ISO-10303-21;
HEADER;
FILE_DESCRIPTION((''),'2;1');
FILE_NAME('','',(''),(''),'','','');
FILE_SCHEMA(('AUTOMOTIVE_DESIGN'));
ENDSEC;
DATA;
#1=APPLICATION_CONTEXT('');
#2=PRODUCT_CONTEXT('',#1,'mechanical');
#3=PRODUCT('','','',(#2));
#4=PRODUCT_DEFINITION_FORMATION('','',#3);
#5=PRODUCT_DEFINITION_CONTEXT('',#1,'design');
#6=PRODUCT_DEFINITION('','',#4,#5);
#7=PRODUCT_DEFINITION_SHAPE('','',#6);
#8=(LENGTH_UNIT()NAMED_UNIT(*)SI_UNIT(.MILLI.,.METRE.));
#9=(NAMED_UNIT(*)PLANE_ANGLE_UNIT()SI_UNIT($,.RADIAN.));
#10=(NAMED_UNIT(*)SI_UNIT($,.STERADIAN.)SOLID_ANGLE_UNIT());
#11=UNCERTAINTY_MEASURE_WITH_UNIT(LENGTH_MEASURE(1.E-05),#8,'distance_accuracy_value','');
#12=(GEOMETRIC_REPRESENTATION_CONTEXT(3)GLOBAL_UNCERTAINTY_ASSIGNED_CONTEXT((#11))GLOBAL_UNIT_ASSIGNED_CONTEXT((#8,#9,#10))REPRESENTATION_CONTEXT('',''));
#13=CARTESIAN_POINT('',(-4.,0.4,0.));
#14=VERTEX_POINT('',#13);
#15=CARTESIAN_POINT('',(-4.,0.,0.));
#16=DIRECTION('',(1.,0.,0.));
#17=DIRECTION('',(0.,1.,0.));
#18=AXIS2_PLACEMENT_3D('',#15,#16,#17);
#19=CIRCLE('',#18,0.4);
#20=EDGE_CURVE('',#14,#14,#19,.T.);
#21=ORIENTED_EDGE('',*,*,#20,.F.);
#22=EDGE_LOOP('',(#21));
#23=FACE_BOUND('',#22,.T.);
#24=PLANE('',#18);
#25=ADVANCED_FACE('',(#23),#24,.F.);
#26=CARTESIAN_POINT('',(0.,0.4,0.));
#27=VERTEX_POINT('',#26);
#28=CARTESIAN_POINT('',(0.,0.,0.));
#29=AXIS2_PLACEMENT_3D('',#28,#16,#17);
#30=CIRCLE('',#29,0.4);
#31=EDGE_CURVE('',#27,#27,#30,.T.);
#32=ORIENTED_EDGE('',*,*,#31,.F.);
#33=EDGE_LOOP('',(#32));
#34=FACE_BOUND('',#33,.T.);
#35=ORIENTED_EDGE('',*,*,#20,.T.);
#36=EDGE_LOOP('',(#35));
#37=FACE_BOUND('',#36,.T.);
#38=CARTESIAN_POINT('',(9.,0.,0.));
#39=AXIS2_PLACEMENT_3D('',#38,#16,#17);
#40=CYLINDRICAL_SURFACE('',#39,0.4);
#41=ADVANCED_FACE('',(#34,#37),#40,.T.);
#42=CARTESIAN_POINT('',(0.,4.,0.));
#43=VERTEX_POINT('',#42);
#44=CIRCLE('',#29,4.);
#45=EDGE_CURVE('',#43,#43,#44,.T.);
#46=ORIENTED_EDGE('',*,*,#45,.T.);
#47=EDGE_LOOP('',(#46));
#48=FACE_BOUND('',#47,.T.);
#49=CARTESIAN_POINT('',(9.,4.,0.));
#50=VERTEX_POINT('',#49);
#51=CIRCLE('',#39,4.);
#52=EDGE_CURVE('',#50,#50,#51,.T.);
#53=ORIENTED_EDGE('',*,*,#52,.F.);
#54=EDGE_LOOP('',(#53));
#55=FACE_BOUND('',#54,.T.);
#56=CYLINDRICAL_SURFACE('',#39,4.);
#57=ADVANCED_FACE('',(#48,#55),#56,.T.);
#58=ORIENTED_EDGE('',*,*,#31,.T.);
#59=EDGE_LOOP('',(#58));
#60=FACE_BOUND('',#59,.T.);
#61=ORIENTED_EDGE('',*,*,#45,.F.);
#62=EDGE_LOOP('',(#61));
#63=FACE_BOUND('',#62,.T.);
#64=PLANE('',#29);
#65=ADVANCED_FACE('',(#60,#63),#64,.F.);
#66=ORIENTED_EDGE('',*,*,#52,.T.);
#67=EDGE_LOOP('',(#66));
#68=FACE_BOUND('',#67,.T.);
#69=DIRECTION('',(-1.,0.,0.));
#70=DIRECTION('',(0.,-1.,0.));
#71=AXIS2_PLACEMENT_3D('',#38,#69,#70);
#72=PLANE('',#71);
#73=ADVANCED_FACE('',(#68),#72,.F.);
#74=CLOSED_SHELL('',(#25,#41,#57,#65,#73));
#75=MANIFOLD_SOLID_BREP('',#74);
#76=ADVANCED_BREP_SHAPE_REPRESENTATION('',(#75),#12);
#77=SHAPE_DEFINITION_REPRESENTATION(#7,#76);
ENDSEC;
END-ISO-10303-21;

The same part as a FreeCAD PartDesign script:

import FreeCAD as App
import Part
import Sketcher

V = App.Vector
Q = App.Units.Quantity

doc = App.newDocument("Part")
body = doc.addObject("PartDesign::Body", "Body")

sketch1 = body.newObject("Sketcher::SketchObject", "Sketch")
sketch1.AttachmentSupport = (doc.getObject("XY_Plane"), [""])
sketch1.MapMode = "FlatFace"
sketch1.addGeometry([
    Part.LineSegment(V(-4, 0.4, 0), V(-4, 0, 0)),
    Part.LineSegment(V(-4, 0, 0), V(9, 0, 0)),
    Part.LineSegment(V(9, 0, 0), V(9, 4, 0)),
    Part.LineSegment(V(9, 4, 0), V(0, 4, 0)),
    Part.LineSegment(V(0, 4, 0), V(0, 0.4, 0)),
    Part.LineSegment(V(0, 0.4, 0), V(-4, 0.4, 0)),
], False)
sketch1.addConstraint([
    Sketcher.Constraint("Coincident", 0, 2, 1, 1),
    Sketcher.Constraint("Coincident", 1, 2, 2, 1),
    Sketcher.Constraint("Coincident", 2, 2, 3, 1),
    Sketcher.Constraint("Coincident", 3, 2, 4, 1),
    Sketcher.Constraint("Coincident", 4, 2, 5, 1),
    Sketcher.Constraint("Coincident", 5, 2, 0, 1),
    Sketcher.Constraint("Vertical", 0),
    Sketcher.Constraint("Horizontal", 1),
    Sketcher.Constraint("Vertical", 2),
    Sketcher.Constraint("Horizontal", 3),
    Sketcher.Constraint("Vertical", 4),
    Sketcher.Constraint("Horizontal", 5),
    Sketcher.Constraint("PointOnObject", 0, 2, -1),
    Sketcher.Constraint("PointOnObject", 3, 2, -2),
    Sketcher.Constraint("Equal", 5, 2),
    Sketcher.Constraint("DistanceX", 1, 1, 1, 2, Q("13 mm")),
    Sketcher.Constraint("DistanceX", 3, 2, 3, 1, Q("9 mm")),
    Sketcher.Constraint("DistanceY", 0, 2, 0, 1, Q("0.4 mm")),
])
revolution = body.newObject("PartDesign::Revolution", "Revolution")
revolution.Profile = sketch1
revolution.ReferenceAxis = (sketch1, ["H_Axis"])
revolution.Angle = 360

doc.recompute()
